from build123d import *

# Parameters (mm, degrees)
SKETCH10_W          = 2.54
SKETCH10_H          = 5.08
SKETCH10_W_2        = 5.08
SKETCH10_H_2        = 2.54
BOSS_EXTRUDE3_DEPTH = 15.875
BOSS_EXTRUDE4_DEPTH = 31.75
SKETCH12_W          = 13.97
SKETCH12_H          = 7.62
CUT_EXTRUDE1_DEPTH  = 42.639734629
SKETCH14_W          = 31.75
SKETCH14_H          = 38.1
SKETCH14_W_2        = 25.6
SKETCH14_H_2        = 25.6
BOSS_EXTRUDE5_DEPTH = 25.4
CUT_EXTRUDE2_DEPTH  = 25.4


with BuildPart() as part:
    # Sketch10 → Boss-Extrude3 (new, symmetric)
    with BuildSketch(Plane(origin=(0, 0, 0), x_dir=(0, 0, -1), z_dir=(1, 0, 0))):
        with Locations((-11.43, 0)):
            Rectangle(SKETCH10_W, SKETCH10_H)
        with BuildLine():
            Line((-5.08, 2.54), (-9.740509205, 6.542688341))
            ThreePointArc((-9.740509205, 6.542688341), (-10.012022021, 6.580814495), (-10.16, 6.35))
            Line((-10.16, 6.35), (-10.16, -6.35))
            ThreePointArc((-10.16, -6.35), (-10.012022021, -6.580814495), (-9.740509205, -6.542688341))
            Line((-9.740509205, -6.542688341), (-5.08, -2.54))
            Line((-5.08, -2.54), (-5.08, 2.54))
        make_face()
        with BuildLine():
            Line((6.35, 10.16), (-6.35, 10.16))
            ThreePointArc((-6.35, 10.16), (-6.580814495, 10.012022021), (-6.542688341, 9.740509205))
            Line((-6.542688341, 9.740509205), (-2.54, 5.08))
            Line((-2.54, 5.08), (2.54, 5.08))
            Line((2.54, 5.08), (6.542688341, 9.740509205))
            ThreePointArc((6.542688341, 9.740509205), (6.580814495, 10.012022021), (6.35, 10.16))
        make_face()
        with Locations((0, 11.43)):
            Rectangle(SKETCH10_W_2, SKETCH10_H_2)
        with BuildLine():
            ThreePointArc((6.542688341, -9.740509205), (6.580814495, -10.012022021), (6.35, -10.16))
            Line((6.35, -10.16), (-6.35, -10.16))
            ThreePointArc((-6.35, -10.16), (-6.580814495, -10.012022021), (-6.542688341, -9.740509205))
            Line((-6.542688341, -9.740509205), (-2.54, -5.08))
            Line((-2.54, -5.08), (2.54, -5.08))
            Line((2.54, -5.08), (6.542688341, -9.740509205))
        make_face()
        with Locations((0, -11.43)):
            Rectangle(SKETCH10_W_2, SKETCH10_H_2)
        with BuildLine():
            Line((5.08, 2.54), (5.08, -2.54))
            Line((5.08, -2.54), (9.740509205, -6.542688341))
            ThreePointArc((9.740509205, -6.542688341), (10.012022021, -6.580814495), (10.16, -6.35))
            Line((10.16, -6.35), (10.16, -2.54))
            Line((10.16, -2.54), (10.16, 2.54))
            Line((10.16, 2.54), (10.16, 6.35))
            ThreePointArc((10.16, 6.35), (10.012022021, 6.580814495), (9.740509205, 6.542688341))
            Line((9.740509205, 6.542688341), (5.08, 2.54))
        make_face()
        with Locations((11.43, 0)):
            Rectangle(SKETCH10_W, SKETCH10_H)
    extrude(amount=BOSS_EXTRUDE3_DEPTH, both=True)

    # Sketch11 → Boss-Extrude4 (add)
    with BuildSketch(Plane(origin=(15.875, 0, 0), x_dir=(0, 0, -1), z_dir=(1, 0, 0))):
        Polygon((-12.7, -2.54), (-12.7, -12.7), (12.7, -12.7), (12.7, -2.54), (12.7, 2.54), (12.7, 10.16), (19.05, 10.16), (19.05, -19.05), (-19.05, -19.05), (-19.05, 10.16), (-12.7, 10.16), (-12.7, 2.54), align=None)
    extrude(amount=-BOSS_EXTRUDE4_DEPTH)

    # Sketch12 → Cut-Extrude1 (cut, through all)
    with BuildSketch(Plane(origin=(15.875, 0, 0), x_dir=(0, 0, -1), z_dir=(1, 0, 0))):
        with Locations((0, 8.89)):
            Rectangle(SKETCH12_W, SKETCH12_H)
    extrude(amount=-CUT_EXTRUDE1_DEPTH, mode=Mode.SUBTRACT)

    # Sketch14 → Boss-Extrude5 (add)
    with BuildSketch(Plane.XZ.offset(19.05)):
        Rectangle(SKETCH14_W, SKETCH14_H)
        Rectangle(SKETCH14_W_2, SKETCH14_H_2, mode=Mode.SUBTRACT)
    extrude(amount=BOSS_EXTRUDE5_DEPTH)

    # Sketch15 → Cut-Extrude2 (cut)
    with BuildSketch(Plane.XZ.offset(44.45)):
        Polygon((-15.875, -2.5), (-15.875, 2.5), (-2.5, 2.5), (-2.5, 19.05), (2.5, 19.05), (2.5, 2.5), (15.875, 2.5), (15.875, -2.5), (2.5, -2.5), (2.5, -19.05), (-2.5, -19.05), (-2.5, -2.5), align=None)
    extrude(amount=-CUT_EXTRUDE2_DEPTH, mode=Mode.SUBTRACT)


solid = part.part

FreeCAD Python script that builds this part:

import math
import FreeCAD as App
import Part
import Sketcher
from FreeCAD import Vector
Q = App.Units.Quantity

doc = App.newDocument("Part")
body = doc.addObject("PartDesign::Body", "Body")
body.AllowCompound = True

# Sketch on YZ plane
sketch1 = doc.addObject("Sketcher::SketchObject", "Sketch")
body.addObject(sketch1)
sketch1.AttachmentSupport = (doc.YZ_Plane, [""])
sketch1.MapMode = "FlatFace"
sketch1.addGeometry([
    Part.LineSegment(Vector(2.54, 12.7, 0), Vector(-2.54, 12.7, 0)),  # 0
    Part.LineSegment(Vector(-2.54, 12.7, 0), Vector(-2.54, 10.16, 0)),  # 1
    Part.LineSegment(Vector(-2.54, 10.16, 0), Vector(-6.35, 10.16, 0)),  # 2
    Part.ArcOfCircle(Part.Circle(Vector(-6.35, 9.906, 0), Vector(0, 0, 1), 0.254), math.radians(90), math.radians(220.657704)),  # 3
    Part.LineSegment(Vector(-6.542688, 9.740509, 0), Vector(-2.54, 5.08, 0)),  # 4
    Part.LineSegment(Vector(-2.54, 5.08, 0), Vector(2.54, 5.08, 0)),  # 5
    Part.LineSegment(Vector(2.54, 5.08, 0), Vector(6.542688, 9.740509, 0)),  # 6
    Part.ArcOfCircle(Part.Circle(Vector(6.35, 9.906, 0), Vector(0, 0, 1), 0.254), math.radians(-40.657704), math.radians(90)),  # 7
    Part.LineSegment(Vector(6.35, 10.16, 0), Vector(2.54, 10.16, 0)),  # 8
    Part.LineSegment(Vector(2.54, 10.16, 0), Vector(2.54, 12.7, 0)),  # 9
    Part.LineSegment(Vector(10.16, -6.35, 0), Vector(10.16, -2.54, 0)),  # 10
    Part.LineSegment(Vector(10.16, -2.54, 0), Vector(12.7, -2.54, 0)),  # 11
    Part.LineSegment(Vector(12.7, -2.54, 0), Vector(12.7, 2.54, 0)),  # 12
    Part.LineSegment(Vector(12.7, 2.54, 0), Vector(10.16, 2.54, 0)),  # 13
    Part.LineSegment(Vector(10.16, 2.54, 0), Vector(10.16, 6.35, 0)),  # 14
    Part.ArcOfCircle(Part.Circle(Vector(9.906, 6.35, 0), Vector(0, 0, 1), 0.254), math.radians(0), math.radians(130.657704)),  # 15
    Part.LineSegment(Vector(9.740509, 6.542688, 0), Vector(5.08, 2.54, 0)),  # 16
    Part.LineSegment(Vector(5.08, 2.54, 0), Vector(5.08, -2.54, 0)),  # 17
    Part.LineSegment(Vector(5.08, -2.54, 0), Vector(9.740509, -6.542688, 0)),  # 18
    Part.ArcOfCircle(Part.Circle(Vector(9.906, -6.35, 0), Vector(0, 0, 1), 0.254), math.radians(-130.657704), math.radians(0)),  # 19
    Part.ArcOfCircle(Part.Circle(Vector(-9.906, -6.35, 0), Vector(0, 0, 1), 0.254), math.radians(180), math.radians(310.657704)),  # 20
    Part.LineSegment(Vector(-9.740509, -6.542688, 0), Vector(-5.08, -2.54, 0)),  # 21
    Part.LineSegment(Vector(-5.08, -2.54, 0), Vector(-5.08, 2.54, 0)),  # 22
    Part.LineSegment(Vector(-5.08, 2.54, 0), Vector(-9.740509, 6.542688, 0)),  # 23
    Part.ArcOfCircle(Part.Circle(Vector(-9.906, 6.35, 0), Vector(0, 0, 1), 0.254), math.radians(49.342296), math.radians(180)),  # 24
    Part.LineSegment(Vector(-10.16, 6.35, 0), Vector(-10.16, 2.54, 0)),  # 25
    Part.LineSegment(Vector(-10.16, 2.54, 0), Vector(-12.7, 2.54, 0)),  # 26
    Part.LineSegment(Vector(-12.7, 2.54, 0), Vector(-12.7, -2.54, 0)),  # 27
    Part.LineSegment(Vector(-12.7, -2.54, 0), Vector(-10.16, -2.54, 0)),  # 28
    Part.LineSegment(Vector(-10.16, -2.54, 0), Vector(-10.16, -6.35, 0)),  # 29
    Part.LineSegment(Vector(2.54, -5.08, 0), Vector(-2.54, -5.08, 0)),  # 30
    Part.LineSegment(Vector(-2.54, -5.08, 0), Vector(-6.542688, -9.740509, 0)),  # 31
    Part.ArcOfCircle(Part.Circle(Vector(-6.35, -9.906, 0), Vector(0, 0, 1), 0.254), math.radians(139.342296), math.radians(270)),  # 32
    Part.LineSegment(Vector(-6.35, -10.16, 0), Vector(-2.54, -10.16, 0)),  # 33
    Part.LineSegment(Vector(-2.54, -10.16, 0), Vector(-2.54, -12.7, 0)),  # 34
    Part.LineSegment(Vector(-2.54, -12.7, 0), Vector(2.54, -12.7, 0)),  # 35
    Part.LineSegment(Vector(2.54, -12.7, 0), Vector(2.54, -10.16, 0)),  # 36
    Part.LineSegment(Vector(2.54, -10.16, 0), Vector(6.35, -10.16, 0)),  # 37
    Part.ArcOfCircle(Part.Circle(Vector(6.35, -9.906, 0), Vector(0, 0, 1), 0.254), math.radians(-90), math.radians(40.657704)),  # 38
    Part.LineSegment(Vector(6.542688, -9.740509, 0), Vector(2.54, -5.08, 0)),  # 39
], False)
sketch1.addConstraint([
    Sketcher.Constraint("Coincident", 0, 2, 1, 1),
    Sketcher.Constraint("Coincident", 1, 2, 2, 1),
    Sketcher.Constraint("Tangent", 2, 2, 3, 1),
    Sketcher.Constraint("Tangent", 3, 2, 4, 1),
    Sketcher.Constraint("Coincident", 4, 2, 5, 1),
    Sketcher.Constraint("Coincident", 5, 2, 6, 1),
    Sketcher.Constraint("Tangent", 6, 2, 7, 1),
    Sketcher.Constraint("Tangent", 7, 2, 8, 1),
    Sketcher.Constraint("Coincident", 8, 2, 9, 1),
    Sketcher.Constraint("Coincident", 9, 2, 0, 1),
    Sketcher.Constraint("Coincident", 10, 2, 11, 1),
    Sketcher.Constraint("Coincident", 11, 2, 12, 1),
    Sketcher.Constraint("Coincident", 12, 2, 13, 1),
    Sketcher.Constraint("Coincident", 13, 2, 14, 1),
    Sketcher.Constraint("Tangent", 14, 2, 15, 1),
    Sketcher.Constraint("Tangent", 15, 2, 16, 1),
    Sketcher.Constraint("Coincident", 16, 2, 17, 1),
    Sketcher.Constraint("Coincident", 17, 2, 18, 1),
    Sketcher.Constraint("Tangent", 18, 2, 19, 1),
    Sketcher.Constraint("Tangent", 19, 2, 10, 1),
    Sketcher.Constraint("Tangent", 20, 2, 21, 1),
    Sketcher.Constraint("Coincident", 21, 2, 22, 1),
    Sketcher.Constraint("Coincident", 22, 2, 23, 1),
    Sketcher.Constraint("Tangent", 23, 2, 24, 1),
    Sketcher.Constraint("Tangent", 24, 2, 25, 1),
    Sketcher.Constraint("Coincident", 25, 2, 26, 1),
    Sketcher.Constraint("Coincident", 26, 2, 27, 1),
    Sketcher.Constraint("Coincident", 27, 2, 28, 1),
    Sketcher.Constraint("Coincident", 28, 2, 29, 1),
    Sketcher.Constraint("Tangent", 29, 2, 20, 1),
    Sketcher.Constraint("Coincident", 30, 2, 31, 1),
    Sketcher.Constraint("Tangent", 31, 2, 32, 1),
    Sketcher.Constraint("Tangent", 32, 2, 33, 1),
    Sketcher.Constraint("Coincident", 33, 2, 34, 1),
    Sketcher.Constraint("Coincident", 34, 2, 35, 1),
    Sketcher.Constraint("Coincident", 35, 2, 36, 1),
    Sketcher.Constraint("Coincident", 36, 2, 37, 1),
    Sketcher.Constraint("Tangent", 37, 2, 38, 1),
    Sketcher.Constraint("Tangent", 38, 2, 39, 1),
    Sketcher.Constraint("Coincident", 39, 2, 30, 1),
    Sketcher.Constraint("Horizontal", 0),
    Sketcher.Constraint("Vertical", 1),
    Sketcher.Constraint("Horizontal", 2),
    Sketcher.Constraint("Horizontal", 5),
    Sketcher.Constraint("Horizontal", 8),
    Sketcher.Constraint("Vertical", 9),
    Sketcher.Constraint("Vertical", 10),
    Sketcher.Constraint("Horizontal", 11),
    Sketcher.Constraint("Vertical", 12),
    Sketcher.Constraint("Horizontal", 13),
    Sketcher.Constraint("Vertical", 14),
    Sketcher.Constraint("Vertical", 17),
    Sketcher.Constraint("Vertical", 22),
    Sketcher.Constraint("Vertical", 25),
    Sketcher.Constraint("Horizontal", 26),
    Sketcher.Constraint("Vertical", 27),
    Sketcher.Constraint("Horizontal", 28),
    Sketcher.Constraint("Vertical", 29),
    Sketcher.Constraint("Horizontal", 30),
    Sketcher.Constraint("Horizontal", 33),
    Sketcher.Constraint("Vertical", 34),
    Sketcher.Constraint("Horizontal", 35),
    Sketcher.Constraint("Vertical", 36),
    Sketcher.Constraint("Horizontal", 37),
    Sketcher.Constraint("Equal", 3, 7),
    Sketcher.Constraint("Equal", 7, 15),
    Sketcher.Constraint("Equal", 15, 19),
    Sketcher.Constraint("Equal", 19, 20),
    Sketcher.Constraint("Equal", 20, 24),
    Sketcher.Constraint("Equal", 24, 32),
    Sketcher.Constraint("Equal", 32, 38),
    Sketcher.Constraint("Symmetric", 15, 3, 20, 3, -1, 1),
    Sketcher.Constraint("Symmetric", 19, 3, 24, 3, -1, 1),
    Sketcher.Constraint("Symmetric", 7, 3, 32, 3, -1, 1),
    Sketcher.Constraint("Symmetric", 3, 3, 38, 3, -1, 1),
    Sketcher.Constraint("Symmetric", 16, 2, 21, 2, -1, 1),
    Sketcher.Constraint("Symmetric", 11, 2, 26, 2, -1, 1),
    Sketcher.Constraint("Symmetric", 5, 2, 30, 2, -1, 1),
    Sketcher.Constraint("Symmetric", 9, 2, 34, 2, -1, 1),
    Sketcher.Constraint("Symmetric", 3, 3, 7, 3, -2),
    Sketcher.Constraint("Symmetric", 19, 3, 20, 3, -2),
    Sketcher.Constraint("Perpendicular", 4, 16),
    Sketcher.Constraint("Perpendicular", 6, 18),
    Sketcher.Constraint("Parallel", 18, 23),
    Sketcher.Constraint("Perpendicular", 21, 39),
    Sketcher.Constraint("Horizontal", 3, 2, 6, 2),
    Sketcher.Constraint("Horizontal", 13, 2, 16, 2),
    Sketcher.Constraint("Horizontal", 11, 2, 17, 2),
    Sketcher.Constraint("Horizontal", 21, 2, 27, 2),
    Sketcher.Constraint("Vertical", 1, 2, 4, 2),
    Sketcher.Constraint("Vertical", 5, 2, 8, 2),
    Sketcher.Constraint("Vertical", 9, 2, 35, 2),
    Sketcher.Constraint("Equal", 28, 1),
    Sketcher.Constraint("Equal", 37, 10),
    Sketcher.Constraint("Equal", 35, 12),
    Sketcher.Constraint("Radius", 3, Q("0.01 in")),
    Sketcher.Constraint("DistanceX", 0, 2, 0, 1, Q("0.2 in")),
    Sketcher.Constraint("DistanceX", 11, 1, 11, 2, Q("0.1 in")),
    Sketcher.Constraint("DistanceX", 2, 2, 2, 1, Q("0.15 in")),
    Sketcher.Constraint("DistanceY", -1, 1, 0, 2, Q("0.5 in")),
    Sketcher.Constraint("DistanceY", -1, 1, 4, 2, Q("0.2 in")),
    Sketcher.Constraint("DistanceX", -1, 1, 10, 2, Q("0.4 in")),
])
pad1 = doc.addObject("PartDesign::Pad", "Pad")
body.addObject(pad1)
pad1.Profile = sketch1
pad1.Length = Q("1.25 in")
pad1.Midplane = True

# Sketch on YZ plane
sketch2 = doc.addObject("Sketcher::SketchObject", "Sketch001")
body.addObject(sketch2)
sketch2.AttachmentSupport = (doc.YZ_Plane, [""])
sketch2.MapMode = "FlatFace"
sketch2.AttachmentOffset = App.Placement(Vector(0, 0, 0.625 * 25.4), App.Rotation())
sketch2.addGeometry([
    Part.LineSegment(Vector(-12.7, 12.7, 0), Vector(10.16, 12.7, 0)),  # 0
    Part.LineSegment(Vector(10.16, 12.7, 0), Vector(10.16, 19.05, 0)),  # 1
    Part.LineSegment(Vector(10.16, 19.05, 0), Vector(-19.05, 19.05, 0)),  # 2
    Part.LineSegment(Vector(-19.05, 19.05, 0), Vector(-19.05, -19.05, 0)),  # 3
    Part.LineSegment(Vector(-19.05, -19.05, 0), Vector(10.16, -19.05, 0)),  # 4
    Part.LineSegment(Vector(10.16, -19.05, 0), Vector(10.16, -12.7, 0)),  # 5
    Part.LineSegment(Vector(10.16, -12.7, 0), Vector(-12.7, -12.7, 0)),  # 6
    Part.LineSegment(Vector(-12.7, -12.7, 0), Vector(-12.7, 12.7, 0)),  # 7
], False)
sketch2.addConstraint([
    Sketcher.Constraint("Coincident", 0, 2, 1, 1),
    Sketcher.Constraint("Coincident", 1, 2, 2, 1),
    Sketcher.Constraint("Coincident", 2, 2, 3, 1),
    Sketcher.Constraint("Coincident", 3, 2, 4, 1),
    Sketcher.Constraint("Coincident", 4, 2, 5, 1),
    Sketcher.Constraint("Coincident", 5, 2, 6, 1),
    Sketcher.Constraint("Coincident", 6, 2, 7, 1),
    Sketcher.Constraint("Coincident", 7, 2, 0, 1),
    Sketcher.Constraint("Horizontal", 0),
    Sketcher.Constraint("Vertical", 1),
    Sketcher.Constraint("Horizontal", 2),
    Sketcher.Constraint("Vertical", 3),
    Sketcher.Constraint("Horizontal", 4),
    Sketcher.Constraint("Vertical", 5),
    Sketcher.Constraint("Horizontal", 6),
    Sketcher.Constraint("Vertical", 7),
    Sketcher.Constraint("Symmetric", 1, 2, 4, 2, -1),
    Sketcher.Constraint("Equal", 1, 5),
    Sketcher.Constraint("DistanceY", 7, 1, 7, 2, Q("1 in")),
    Sketcher.Constraint("DistanceX", 0, 1, 0, 2, Q("0.9 in")),
    Sketcher.Constraint("DistanceY", 3, 2, 3, 1, Q("1.5 in")),
    Sketcher.Constraint("DistanceX", 2, 2, 2, 1, Q("1.15 in")),
    Sketcher.Constraint("DistanceX", -1, 1, 0, 2, Q("0.4 in")),
])
pad2 = doc.addObject("PartDesign::Pad", "Pad001")
body.addObject(pad2)
pad2.Profile = sketch2
pad2.Length = Q("1.25 in")
pad2.Reversed = True

# Sketch on YZ plane
sketch3 = doc.addObject("Sketcher::SketchObject", "Sketch002")
body.addObject(sketch3)
sketch3.AttachmentSupport = (doc.YZ_Plane, [""])
sketch3.MapMode = "FlatFace"
sketch3.AttachmentOffset = App.Placement(Vector(0, 0, 0.625 * 25.4), App.Rotation())
sketch3.addGeometry([
    Part.LineSegment(Vector(12.7, 6.985, 0), Vector(5.08, 6.985, 0)),
    Part.LineSegment(Vector(5.08, 6.985, 0), Vector(5.08, -6.985, 0)),
    Part.LineSegment(Vector(5.08, -6.985, 0), Vector(12.7, -6.985, 0)),
    Part.LineSegment(Vector(12.7, -6.985, 0), Vector(12.7, 6.985, 0)),
], False)
sketch3.addConstraint([
    Sketcher.Constraint("Coincident", 0, 2, 1, 1),
    Sketcher.Constraint("Coincident", 1, 2, 2, 1),
    Sketcher.Constraint("Coincident", 2, 2, 3, 1),
    Sketcher.Constraint("Coincident", 3, 2, 0, 1),
    Sketcher.Constraint("Horizontal", 0),
    Sketcher.Constraint("Vertical", 1),
    Sketcher.Constraint("Horizontal", 2),
    Sketcher.Constraint("Vertical", 3),
    Sketcher.Constraint("DistanceX", 0, 2, 0, 1, Q("0.3 in")),
    Sketcher.Constraint("DistanceY", 1, 2, 1, 1, Q("0.55 in")),
    Sketcher.Constraint("DistanceX", -1, 1, 0, 2, Q("0.2 in")),
    Sketcher.Constraint("DistanceY", -1, 1, 0, 2, Q("0.275 in")),
])
pocket1 = doc.addObject("PartDesign::Pocket", "Pocket")
body.addObject(pocket1)
pocket1.Profile = sketch3
pocket1.Type = "ThroughAll"

# Sketch on XZ plane
sketch4 = doc.addObject("Sketcher::SketchObject", "Sketch003")
body.addObject(sketch4)
sketch4.AttachmentSupport = (doc.XZ_Plane, [""])
sketch4.MapMode = "FlatFace"
sketch4.AttachmentOffset = App.Placement(Vector(0, 0, 0.75 * 25.4), App.Rotation())
sketch4.addGeometry([
    Part.LineSegment(Vector(-15.875, 19.05, 0), Vector(-15.875, -19.05, 0)),  # 0
    Part.LineSegment(Vector(-15.875, -19.05, 0), Vector(15.875, -19.05, 0)),  # 1
    Part.LineSegment(Vector(15.875, -19.05, 0), Vector(15.875, 19.05, 0)),  # 2
    Part.LineSegment(Vector(15.875, 19.05, 0), Vector(-15.875, 19.05, 0)),  # 3
    Part.LineSegment(Vector(12.8, -12.8, 0), Vector(-12.8, -12.8, 0)),  # 4
    Part.LineSegment(Vector(-12.8, -12.8, 0), Vector(-12.8, 12.8, 0)),  # 5
    Part.LineSegment(Vector(-12.8, 12.8, 0), Vector(12.8, 12.8, 0)),  # 6
    Part.LineSegment(Vector(12.8, 12.8, 0), Vector(12.8, -12.8, 0)),  # 7
], False)
sketch4.addConstraint([
    Sketcher.Constraint("Coincident", 0, 2, 1, 1),
    Sketcher.Constraint("Coincident", 1, 2, 2, 1),
    Sketcher.Constraint("Coincident", 2, 2, 3, 1),
    Sketcher.Constraint("Coincident", 3, 2, 0, 1),
    Sketcher.Constraint("Coincident", 4, 2, 5, 1),
    Sketcher.Constraint("Coincident", 5, 2, 6, 1),
    Sketcher.Constraint("Coincident", 6, 2, 7, 1),
    Sketcher.Constraint("Coincident", 7, 2, 4, 1),
    Sketcher.Constraint("Vertical", 0),
    Sketcher.Constraint("Horizontal", 1),
    Sketcher.Constraint("Vertical", 2),
    Sketcher.Constraint("Horizontal", 3),
    Sketcher.Constraint("Horizontal", 4),
    Sketcher.Constraint("Vertical", 5),
    Sketcher.Constraint("Horizontal", 6),
    Sketcher.Constraint("Vertical", 7),
    Sketcher.Constraint("Symmetric", 0, 2, 2, 2, -1, 1),
    Sketcher.Constraint("Symmetric", 4, 2, 6, 2, -1, 1),
    Sketcher.Constraint("Equal", 6, 5),
    Sketcher.Constraint("DistanceY", 0, 2, 0, 1, Q("1.5 in")),
    Sketcher.Constraint("DistanceX", 1, 1, 1, 2, Q("1.25 in")),
    Sketcher.Constraint("DistanceX", 4, 2, 4, 1, 25.6),
])
pad3 = doc.addObject("PartDesign::Pad", "Pad002")
body.addObject(pad3)
pad3.Profile = sketch4
pad3.Length = Q("1 in")

# Sketch on XZ plane
sketch5 = doc.addObject("Sketcher::SketchObject", "Sketch004")
body.addObject(sketch5)
sketch5.AttachmentSupport = (doc.XZ_Plane, [""])
sketch5.MapMode = "FlatFace"
sketch5.AttachmentOffset = App.Placement(Vector(0, 0, 1.75 * 25.4), App.Rotation())
sketch5.addGeometry([
    Part.LineSegment(Vector(-15.875, 2.5, 0), Vector(-15.875, -2.5, 0)),  # 0
    Part.LineSegment(Vector(-15.875, -2.5, 0), Vector(-2.5, -2.5, 0)),  # 1
    Part.LineSegment(Vector(-2.5, -2.5, 0), Vector(-2.5, -19.05, 0)),  # 2
    Part.LineSegment(Vector(-2.5, -19.05, 0), Vector(2.5, -19.05, 0)),  # 3
    Part.LineSegment(Vector(2.5, -19.05, 0), Vector(2.5, -2.5, 0)),  # 4
    Part.LineSegment(Vector(2.5, -2.5, 0), Vector(15.875, -2.5, 0)),  # 5
    Part.LineSegment(Vector(15.875, -2.5, 0), Vector(15.875, 2.5, 0)),  # 6
    Part.LineSegment(Vector(15.875, 2.5, 0), Vector(2.5, 2.5, 0)),  # 7
    Part.LineSegment(Vector(2.5, 2.5, 0), Vector(2.5, 19.05, 0)),  # 8
    Part.LineSegment(Vector(2.5, 19.05, 0), Vector(-2.5, 19.05, 0)),  # 9
    Part.LineSegment(Vector(-2.5, 19.05, 0), Vector(-2.5, 2.5, 0)),  # 10
    Part.LineSegment(Vector(-2.5, 2.5, 0), Vector(-15.875, 2.5, 0)),  # 11
], False)
sketch5.addConstraint([
    Sketcher.Constraint("Coincident", 0, 2, 1, 1),
    Sketcher.Constraint("Coincident", 1, 2, 2, 1),
    Sketcher.Constraint("Coincident", 2, 2, 3, 1),
    Sketcher.Constraint("Coincident", 3, 2, 4, 1),
    Sketcher.Constraint("Coincident", 4, 2, 5, 1),
    Sketcher.Constraint("Coincident", 5, 2, 6, 1),
    Sketcher.Constraint("Coincident", 6, 2, 7, 1),
    Sketcher.Constraint("Coincident", 7, 2, 8, 1),
    Sketcher.Constraint("Coincident", 8, 2, 9, 1),
    Sketcher.Constraint("Coincident", 9, 2, 10, 1),
    Sketcher.Constraint("Coincident", 10, 2, 11, 1),
    Sketcher.Constraint("Coincident", 11, 2, 0, 1),
    Sketcher.Constraint("Vertical", 0),
    Sketcher.Constraint("Horizontal", 1),
    Sketcher.Constraint("Vertical", 2),
    Sketcher.Constraint("Horizontal", 3),
    Sketcher.Constraint("Vertical", 4),
    Sketcher.Constraint("Horizontal", 5),
    Sketcher.Constraint("Vertical", 6),
    Sketcher.Constraint("Horizontal", 7),
    Sketcher.Constraint("Vertical", 8),
    Sketcher.Constraint("Horizontal", 9),
    Sketcher.Constraint("Vertical", 10),
    Sketcher.Constraint("Horizontal", 11),
    Sketcher.Constraint("Symmetric", 0, 2, 6, 2, -1, 1),
    Sketcher.Constraint("Symmetric", 2, 2, 8, 2, -1, 1),
    Sketcher.Constraint("Symmetric", 4, 2, 10, 2, -1, 1),
    Sketcher.Constraint("Symmetric", 1, 2, 4, 2, -2),
    Sketcher.Constraint("Equal", 9, 0),
    Sketcher.Constraint("DistanceY", 2, 2, -1, 1, Q("0.75 in")),
    Sketcher.Constraint("DistanceX", 0, 2, 5, 2, Q("1.25 in")),
    Sketcher.Constraint("DistanceX", 1, 1, 1, 2, 13.375),
])
pocket2 = doc.addObject("PartDesign::Pocket", "Pocket001")
body.addObject(pocket2)
pocket2.Profile = sketch5
pocket2.Length = Q("1 in")

doc.recompute()
